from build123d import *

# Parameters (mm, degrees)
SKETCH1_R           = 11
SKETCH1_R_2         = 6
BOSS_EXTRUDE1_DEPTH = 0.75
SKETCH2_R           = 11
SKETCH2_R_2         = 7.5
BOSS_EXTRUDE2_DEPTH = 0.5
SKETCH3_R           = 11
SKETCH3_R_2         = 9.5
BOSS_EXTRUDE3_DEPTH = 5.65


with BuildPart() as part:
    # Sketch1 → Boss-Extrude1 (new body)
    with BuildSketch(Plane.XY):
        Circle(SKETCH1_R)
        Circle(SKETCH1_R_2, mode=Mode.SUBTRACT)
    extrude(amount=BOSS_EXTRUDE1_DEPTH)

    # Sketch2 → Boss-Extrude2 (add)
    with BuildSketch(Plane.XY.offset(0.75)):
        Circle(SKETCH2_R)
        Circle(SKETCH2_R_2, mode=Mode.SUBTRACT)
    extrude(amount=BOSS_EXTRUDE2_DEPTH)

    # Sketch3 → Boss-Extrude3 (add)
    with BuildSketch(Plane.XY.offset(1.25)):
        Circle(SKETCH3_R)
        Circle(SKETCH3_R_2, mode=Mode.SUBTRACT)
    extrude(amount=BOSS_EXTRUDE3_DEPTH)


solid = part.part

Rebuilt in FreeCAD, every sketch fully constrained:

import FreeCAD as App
import Part
import Sketcher

doc = App.newDocument("Part")
body = doc.addObject("PartDesign::Body", "Body")

# Sketch on XY plane
sketch1 = body.newObject("Sketcher::SketchObject", "Sketch")
sketch1.AttachmentSupport = (doc.getObject("XY_Plane"), [""])
sketch1.MapMode = "FlatFace"
sketch1.addGeometry(Part.Circle(App.Vector(0, 0, 0), App.Vector(0, 0, 1), 11), False)
sketch1.addGeometry(Part.Circle(App.Vector(0, 0, 0), App.Vector(0, 0, 1), 6), False)
sketch1.addConstraint(Sketcher.Constraint("Coincident", 0, 3, -1, 1))
sketch1.addConstraint(Sketcher.Constraint("Coincident", 1, 3, -1, 1))
sketch1.addConstraint(Sketcher.Constraint("Diameter", 0, 22.0))
sketch1.addConstraint(Sketcher.Constraint("Diameter", 1, 12.0))
pad1 = body.newObject("PartDesign::Pad", "Pad")
pad1.Profile = sketch1
pad1.Length = 0.75

# Sketch on XY plane
sketch2 = body.newObject("Sketcher::SketchObject", "Sketch001")
sketch2.AttachmentSupport = (doc.getObject("XY_Plane"), [""])
sketch2.MapMode = "FlatFace"
sketch2.AttachmentOffset = App.Placement(App.Vector(0, 0, 0.75), App.Rotation())
sketch2.addGeometry(Part.Circle(App.Vector(0, 0, 0), App.Vector(0, 0, 1), 11), False)
sketch2.addGeometry(Part.Circle(App.Vector(0, 0, 0), App.Vector(0, 0, 1), 7.5), False)
sketch2.addConstraint(Sketcher.Constraint("Coincident", 0, 3, -1, 1))
sketch2.addConstraint(Sketcher.Constraint("Coincident", 1, 3, -1, 1))
sketch2.addConstraint(Sketcher.Constraint("Diameter", 0, 22.0))
sketch2.addConstraint(Sketcher.Constraint("Diameter", 1, 15.0))
pad2 = body.newObject("PartDesign::Pad", "Pad001")
pad2.Profile = sketch2
pad2.Length = 0.5

# Sketch on XY plane
sketch3 = body.newObject("Sketcher::SketchObject", "Sketch002")
sketch3.AttachmentSupport = (doc.getObject("XY_Plane"), [""])
sketch3.MapMode = "FlatFace"
sketch3.AttachmentOffset = App.Placement(App.Vector(0, 0, 1.25), App.Rotation())
sketch3.addGeometry(Part.Circle(App.Vector(0, 0, 0), App.Vector(0, 0, 1), 11), False)
sketch3.addGeometry(Part.Circle(App.Vector(0, 0, 0), App.Vector(0, 0, 1), 9.5), False)
sketch3.addConstraint(Sketcher.Constraint("Coincident", 0, 3, -1, 1))
sketch3.addConstraint(Sketcher.Constraint("Coincident", 1, 3, -1, 1))
sketch3.addConstraint(Sketcher.Constraint("Diameter", 0, 22.0))
sketch3.addConstraint(Sketcher.Constraint("Diameter", 1, 19.0))
pad3 = body.newObject("PartDesign::Pad", "Pad002")
pad3.Profile = sketch3
pad3.Length = 5.65

doc.recompute()
